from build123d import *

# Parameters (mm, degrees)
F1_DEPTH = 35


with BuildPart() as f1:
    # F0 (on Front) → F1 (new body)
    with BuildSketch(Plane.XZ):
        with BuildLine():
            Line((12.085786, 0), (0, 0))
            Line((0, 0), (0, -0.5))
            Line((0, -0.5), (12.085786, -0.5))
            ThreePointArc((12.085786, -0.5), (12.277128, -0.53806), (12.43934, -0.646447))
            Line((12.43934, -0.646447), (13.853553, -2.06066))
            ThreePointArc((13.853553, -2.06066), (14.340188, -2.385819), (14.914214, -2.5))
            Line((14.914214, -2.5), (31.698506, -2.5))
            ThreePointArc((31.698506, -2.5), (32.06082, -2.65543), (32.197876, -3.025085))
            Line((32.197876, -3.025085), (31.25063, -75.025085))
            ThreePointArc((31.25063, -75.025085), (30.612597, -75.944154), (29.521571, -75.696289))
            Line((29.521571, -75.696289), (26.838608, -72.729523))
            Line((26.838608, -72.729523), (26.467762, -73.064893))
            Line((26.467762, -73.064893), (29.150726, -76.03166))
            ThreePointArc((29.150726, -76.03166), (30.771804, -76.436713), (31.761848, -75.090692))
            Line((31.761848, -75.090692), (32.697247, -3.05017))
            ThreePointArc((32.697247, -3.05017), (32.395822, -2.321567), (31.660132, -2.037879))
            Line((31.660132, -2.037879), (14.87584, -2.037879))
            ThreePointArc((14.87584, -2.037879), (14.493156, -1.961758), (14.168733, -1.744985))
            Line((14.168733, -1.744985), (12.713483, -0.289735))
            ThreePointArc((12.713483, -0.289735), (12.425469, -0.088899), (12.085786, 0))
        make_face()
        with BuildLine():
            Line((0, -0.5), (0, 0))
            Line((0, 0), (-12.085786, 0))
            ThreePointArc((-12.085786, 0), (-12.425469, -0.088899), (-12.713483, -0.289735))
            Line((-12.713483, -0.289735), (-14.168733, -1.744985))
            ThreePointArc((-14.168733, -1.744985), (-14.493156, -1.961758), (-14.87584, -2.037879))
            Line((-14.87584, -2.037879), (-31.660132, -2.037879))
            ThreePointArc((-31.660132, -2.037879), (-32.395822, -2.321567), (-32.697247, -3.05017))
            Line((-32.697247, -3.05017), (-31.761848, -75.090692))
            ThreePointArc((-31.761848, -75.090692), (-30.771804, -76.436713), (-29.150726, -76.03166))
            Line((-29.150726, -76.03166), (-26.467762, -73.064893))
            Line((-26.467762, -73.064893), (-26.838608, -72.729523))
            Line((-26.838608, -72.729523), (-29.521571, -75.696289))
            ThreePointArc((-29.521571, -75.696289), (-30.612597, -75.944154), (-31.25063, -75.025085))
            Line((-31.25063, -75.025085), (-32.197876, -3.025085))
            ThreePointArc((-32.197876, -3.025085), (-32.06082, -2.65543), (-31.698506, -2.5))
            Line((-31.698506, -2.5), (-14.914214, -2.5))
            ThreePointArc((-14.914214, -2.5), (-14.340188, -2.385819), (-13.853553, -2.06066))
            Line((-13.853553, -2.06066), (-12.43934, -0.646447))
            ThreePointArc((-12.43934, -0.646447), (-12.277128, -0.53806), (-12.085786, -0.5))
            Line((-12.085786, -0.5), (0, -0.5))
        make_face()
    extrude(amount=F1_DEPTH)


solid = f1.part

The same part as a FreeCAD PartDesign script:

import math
import FreeCAD as App
import Part
import Sketcher

doc = App.newDocument("Part")
body = doc.addObject("PartDesign::Body", "Body")

sketch1 = doc.addObject("Sketcher::SketchObject", "Sketch")
body.addObject(sketch1)
sketch1.AttachmentSupport = (doc.XZ_Plane, [""])
sketch1.MapMode = "FlatFace"
sketch1.addGeometry(Part.LineSegment(App.Vector(12.09, 0, 0), App.Vector(-12.09, 0, 0)), False)
sketch1.addGeometry(Part.ArcOfCircle(Part.Circle(App.Vector(-12.01, -1, 0), App.Vector(0, 0, 1), 1), math.radians(95), math.radians(135)), False)
sketch1.addGeometry(Part.LineSegment(App.Vector(-12.71, -0.29, 0), App.Vector(-14.17, -1.74, 0)), False)
sketch1.addGeometry(Part.ArcOfCircle(Part.Circle(App.Vector(-14.88, -1.04, 0), App.Vector(0, 0, 1), 1), math.radians(-90), math.radians(-45)), False)
sketch1.addGeometry(Part.LineSegment(App.Vector(-14.88, -2.04, 0), App.Vector(-31.66, -2.04, 0)), False)
sketch1.addGeometry(Part.ArcOfCircle(Part.Circle(App.Vector(-31.7, -3.04, 0), App.Vector(0, 0, 1), 1), math.radians(88), math.radians(181)), False)
sketch1.addGeometry(Part.LineSegment(App.Vector(-32.7, -3.05, 0), App.Vector(-31.76, -75.09, 0)), False)
sketch1.addGeometry(Part.ArcOfCircle(Part.Circle(App.Vector(-30.26, -75.03, 0), App.Vector(0, 0, 1), 1.5), math.radians(-178), math.radians(-42)), False)
sketch1.addGeometry(Part.LineSegment(App.Vector(-29.15, -76.03, 0), App.Vector(-26.47, -73.06, 0)), False)
sketch1.addGeometry(Part.LineSegment(App.Vector(-26.47, -73.06, 0), App.Vector(-26.84, -72.73, 0)), False)
sketch1.addGeometry(Part.LineSegment(App.Vector(-26.84, -72.73, 0), App.Vector(-29.52, -75.7, 0)), False)
sketch1.addGeometry(Part.ArcOfCircle(Part.Circle(App.Vector(-30.25, -75.01, 0), App.Vector(0, 0, 1), 1), math.radians(-179), math.radians(-43)), False)
sketch1.addGeometry(Part.LineSegment(App.Vector(-31.25, -75.03, 0), App.Vector(-32.2, -3.03, 0)), False)
sketch1.addGeometry(Part.ArcOfCircle(Part.Circle(App.Vector(-31.7, -3, 0), App.Vector(0, 0, 1), 0.5), math.radians(90), math.radians(183)), False)
sketch1.addGeometry(Part.LineSegment(App.Vector(-31.7, -2.5, 0), App.Vector(-14.91, -2.5, 0)), False)
sketch1.addGeometry(Part.ArcOfCircle(Part.Circle(App.Vector(-14.91, -1, 0), App.Vector(0, 0, 1), 1.5), math.radians(-90), math.radians(-45)), False)
sketch1.addGeometry(Part.LineSegment(App.Vector(-13.85, -2.06, 0), App.Vector(-12.44, -0.65, 0)), False)
sketch1.addGeometry(Part.ArcOfCircle(Part.Circle(App.Vector(-12.09, -1, 0), App.Vector(0, 0, 1), 0.5), math.radians(90), math.radians(135)), False)
sketch1.addGeometry(Part.LineSegment(App.Vector(-12.09, -0.5, 0), App.Vector(12.09, -0.5, 0)), False)
sketch1.addGeometry(Part.ArcOfCircle(Part.Circle(App.Vector(12.09, -1, 0), App.Vector(0, 0, 1), 0.5), math.radians(45), math.radians(90)), False)
sketch1.addGeometry(Part.LineSegment(App.Vector(12.44, -0.65, 0), App.Vector(13.85, -2.06, 0)), False)
sketch1.addGeometry(Part.ArcOfCircle(Part.Circle(App.Vector(14.91, -1, 0), App.Vector(0, 0, 1), 1.5), math.radians(-135), math.radians(-90)), False)
sketch1.addGeometry(Part.LineSegment(App.Vector(14.91, -2.5, 0), App.Vector(31.7, -2.5, 0)), False)
sketch1.addGeometry(Part.ArcOfCircle(Part.Circle(App.Vector(31.7, -3, 0), App.Vector(0, 0, 1), 0.5), math.radians(-3), math.radians(90)), False)
sketch1.addGeometry(Part.LineSegment(App.Vector(32.2, -3.03, 0), App.Vector(31.25, -75.03, 0)), False)
sketch1.addGeometry(Part.ArcOfCircle(Part.Circle(App.Vector(30.25, -75.01, 0), App.Vector(0, 0, 1), 1), math.radians(-137), math.radians(-1)), False)
sketch1.addGeometry(Part.LineSegment(App.Vector(29.52, -75.7, 0), App.Vector(26.84, -72.73, 0)), False)
sketch1.addGeometry(Part.LineSegment(App.Vector(26.84, -72.73, 0), App.Vector(26.47, -73.06, 0)), False)
sketch1.addGeometry(Part.LineSegment(App.Vector(26.47, -73.06, 0), App.Vector(29.15, -76.03, 0)), False)
sketch1.addGeometry(Part.ArcOfCircle(Part.Circle(App.Vector(30.26, -75.03, 0), App.Vector(0, 0, 1), 1.5), math.radians(-138), math.radians(-2)), False)
sketch1.addGeometry(Part.LineSegment(App.Vector(31.76, -75.09, 0), App.Vector(32.7, -3.05, 0)), False)
sketch1.addGeometry(Part.ArcOfCircle(Part.Circle(App.Vector(31.7, -3.04, 0), App.Vector(0, 0, 1), 1), math.radians(-1), math.radians(92)), False)
sketch1.addGeometry(Part.LineSegment(App.Vector(31.66, -2.04, 0), App.Vector(14.88, -2.04, 0)), False)
sketch1.addGeometry(Part.ArcOfCircle(Part.Circle(App.Vector(14.88, -1.04, 0), App.Vector(0, 0, 1), 1), math.radians(-135), math.radians(-90)), False)
sketch1.addGeometry(Part.LineSegment(App.Vector(14.17, -1.74, 0), App.Vector(12.71, -0.29, 0)), False)
sketch1.addGeometry(Part.ArcOfCircle(Part.Circle(App.Vector(12.01, -1, 0), App.Vector(0, 0, 1), 1), math.radians(45), math.radians(85)), False)
sketch1.addConstraint(Sketcher.Constraint("Coincident", 0, 2, 1, 1))
sketch1.addConstraint(Sketcher.Constraint("Coincident", 1, 2, 2, 1))
sketch1.addConstraint(Sketcher.Constraint("Tangent", 2, 2, 3, 2))
sketch1.addConstraint(Sketcher.Constraint("Tangent", 3, 1, 4, 1))
sketch1.addConstraint(Sketcher.Constraint("Coincident", 4, 2, 5, 1))
sketch1.addConstraint(Sketcher.Constraint("Tangent", 5, 2, 6, 1))
sketch1.addConstraint(Sketcher.Constraint("Coincident", 6, 2, 7, 1))
sketch1.addConstraint(Sketcher.Constraint("Tangent", 7, 2, 8, 1))
sketch1.addConstraint(Sketcher.Constraint("Coincident", 8, 2, 9, 1))
sketch1.addConstraint(Sketcher.Constraint("Coincident", 9, 2, 10, 1))
sketch1.addConstraint(Sketcher.Constraint("Coincident", 10, 2, 11, 2))
sketch1.addConstraint(Sketcher.Constraint("Tangent", 11, 1, 12, 1))
sketch1.addConstraint(Sketcher.Constraint("Coincident", 12, 2, 13, 2))
sketch1.addConstraint(Sketcher.Constraint("Tangent", 13, 1, 14, 1))
sketch1.addConstraint(Sketcher.Constraint("Tangent", 14, 2, 15, 1))
sketch1.addConstraint(Sketcher.Constraint("Tangent", 15, 2, 16, 1))
sketch1.addConstraint(Sketcher.Constraint("Coincident", 16, 2, 17, 2))
sketch1.addConstraint(Sketcher.Constraint("Coincident", 17, 1, 18, 1))
sketch1.addConstraint(Sketcher.Constraint("Coincident", 18, 2, 19, 2))
sketch1.addConstraint(Sketcher.Constraint("Coincident", 19, 1, 20, 1))
sketch1.addConstraint(Sketcher.Constraint("Tangent", 20, 2, 21, 1))
sketch1.addConstraint(Sketcher.Constraint("Tangent", 21, 2, 22, 1))
sketch1.addConstraint(Sketcher.Constraint("Tangent", 22, 2, 23, 2))
sketch1.addConstraint(Sketcher.Constraint("Coincident", 23, 1, 24, 1))
sketch1.addConstraint(Sketcher.Constraint("Tangent", 24, 2, 25, 2))
sketch1.addConstraint(Sketcher.Constraint("Coincident", 25, 1, 26, 1))
sketch1.addConstraint(Sketcher.Constraint("Coincident", 26, 2, 27, 1))
sketch1.addConstraint(Sketcher.Constraint("Coincident", 27, 2, 28, 1))
sketch1.addConstraint(Sketcher.Constraint("Tangent", 28, 2, 29, 1))
sketch1.addConstraint(Sketcher.Constraint("Coincident", 29, 2, 30, 1))
sketch1.addConstraint(Sketcher.Constraint("Tangent", 30, 2, 31, 1))
sketch1.addConstraint(Sketcher.Constraint("Coincident", 31, 2, 32, 1))
sketch1.addConstraint(Sketcher.Constraint("Tangent", 32, 2, 33, 2))
sketch1.addConstraint(Sketcher.Constraint("Tangent", 33, 1, 34, 1))
sketch1.addConstraint(Sketcher.Constraint("Coincident", 34, 2, 35, 1))
sketch1.addConstraint(Sketcher.Constraint("Coincident", 35, 2, 0, 1))
sketch1.addConstraint(Sketcher.Constraint("Horizontal", 0))
sketch1.addConstraint(Sketcher.Constraint("Horizontal", 4))
sketch1.addConstraint(Sketcher.Constraint("Horizontal", 14))
sketch1.addConstraint(Sketcher.Constraint("Horizontal", 18))
sketch1.addConstraint(Sketcher.Constraint("Horizontal", 22))
sketch1.addConstraint(Sketcher.Constraint("Horizontal", 32))
sketch1.addConstraint(Sketcher.Constraint("Equal", 3, 5))
sketch1.addConstraint(Sketcher.Constraint("Equal", 5, 11))
sketch1.addConstraint(Sketcher.Constraint("Equal", 17, 19))
sketch1.addConstraint(Sketcher.Constraint("Equal", 15, 21))
sketch1.addConstraint(Sketcher.Constraint("Equal", 13, 23))
sketch1.addConstraint(Sketcher.Constraint("Equal", 11, 25))
sketch1.addConstraint(Sketcher.Constraint("Equal", 7, 29))
sketch1.addConstraint(Sketcher.Constraint("Equal", 25, 31))
sketch1.addConstraint(Sketcher.Constraint("Equal", 31, 33))
sketch1.addConstraint(Sketcher.Constraint("Equal", 1, 35))
sketch1.addConstraint(Sketcher.Constraint("Symmetric", 0, 2, 35, 2, -1, 1))
sketch1.addConstraint(Sketcher.Constraint("Symmetric", 15, 3, 21, 3, -2))
sketch1.addConstraint(Sketcher.Constraint("Symmetric", 11, 3, 25, 3, -2))
sketch1.addConstraint(Sketcher.Constraint("Symmetric", 7, 3, 29, 3, -2))
sketch1.addConstraint(Sketcher.Constraint("Symmetric", 5, 3, 31, 3, -2))
sketch1.addConstraint(Sketcher.Constraint("Symmetric", 3, 3, 33, 3, -2))
sketch1.addConstraint(Sketcher.Constraint("Symmetric", 16, 2, 19, 1, -2))
sketch1.addConstraint(Sketcher.Constraint("Symmetric", 12, 2, 23, 1, -2))
sketch1.addConstraint(Sketcher.Constraint("Symmetric", 9, 2, 26, 2, -2))
sketch1.addConstraint(Sketcher.Constraint("Symmetric", 8, 2, 27, 2, -2))
sketch1.addConstraint(Sketcher.Constraint("Symmetric", 1, 2, 34, 2, -2))
sketch1.addConstraint(Sketcher.Constraint("Perpendicular", 8, 9))
sketch1.addConstraint(Sketcher.Constraint("Perpendicular", 9, 10))
sketch1.addConstraint(Sketcher.Constraint("Parallel", 2, 16))
sketch1.addConstraint(Sketcher.Constraint("Perpendicular", 16, 20))
sketch1.addConstraint(Sketcher.Constraint("Parallel", 26, 28))
sketch1.addConstraint(Sketcher.Constraint("Horizontal", 15, 3, 17, 3))
sketch1.addConstraint(Sketcher.Constraint("Horizontal", 6, 2, 29, 2))
sketch1.addConstraint(Sketcher.Constraint("Vertical", 17, 3, 0, 2))
sketch1.addConstraint(Sketcher.Constraint("Vertical", 0, 2, 17, 1))
sketch1.addConstraint(Sketcher.Constraint("Vertical", 19, 3, 18, 2))
sketch1.addConstraint(Sketcher.Constraint("Equal", 4, 14))
sketch1.addConstraint(Sketcher.Constraint("Equal", 8, 10))
sketch1.addConstraint(Sketcher.Constraint("Radius", 3, 1.000001))
sketch1.addConstraint(Sketcher.Constraint("Radius", 7, 1.5))
sketch1.addConstraint(Sketcher.Constraint("Radius", 13, 0.5))
sketch1.addConstraint(Sketcher.Constraint("Distance", 8, 4.0))
sketch1.addConstraint(Sketcher.Constraint("Distance", 16, 1.999999))
sketch1.addConstraint(Sketcher.Constraint("DistanceY", 13, 3, -1, 1, 3.0))
sketch1.addConstraint(Sketcher.Constraint("DistanceX", 15, 3, 19, 3, 27.000002))
sketch1.addConstraint(Sketcher.Constraint("Distance", 9, 0.5))
sketch1.addConstraint(Sketcher.Constraint("DistanceY", 17, 1, -1, 1, 0.5))
sketch1.addConstraint(Sketcher.Constraint("Radius", 1, 1.000006))
sketch1.addConstraint(Sketcher.Constraint("Radius", 15, 1.500002))
sketch1.addConstraint(Sketcher.Constraint("DistanceY", 7, 3, 1, 3, 74.0287))
sketch1.addConstraint(Sketcher.Constraint("DistanceX", 11, 3, 15, 3, 15.336502))
sketch1.addConstraint(Sketcher.Constraint("DistanceX", 5, 3, 4, 2, 0.0372))
sketch1.addConstraint(Sketcher.Constraint("DistanceX", 5, 2, 6, 2, 0.935399))
sketch1.addConstraint(Sketcher.Constraint("DistanceX", 7, 3, 8, 2, 3.795501))
sketch1.addConstraint(Sketcher.Constraint("DistanceY", 6, 2, 8, 2, 2.025799))
sketch1.addConstraint(Sketcher.Constraint("DistanceY", 5, 3, 12, 2, 0.012101))
sketch1.addConstraint(Sketcher.Constraint("DistanceY", 1, 3, 16, 2, 0.350401))
sketch1.addConstraint(Sketcher.Constraint("DistanceX", 19, 1, 33, 3, 2.436501))
sketch1.addConstraint(Sketcher.Constraint("Distance", 12, 72.006231))
sketch1.addConstraint(Sketcher.Constraint("DistanceX", 1, 2, 1, 3, 0.707109))
pad1 = doc.addObject("PartDesign::Pad", "Pad")
body.addObject(pad1)
pad1.Profile = sketch1
pad1.Length = 35

doc.recompute()
